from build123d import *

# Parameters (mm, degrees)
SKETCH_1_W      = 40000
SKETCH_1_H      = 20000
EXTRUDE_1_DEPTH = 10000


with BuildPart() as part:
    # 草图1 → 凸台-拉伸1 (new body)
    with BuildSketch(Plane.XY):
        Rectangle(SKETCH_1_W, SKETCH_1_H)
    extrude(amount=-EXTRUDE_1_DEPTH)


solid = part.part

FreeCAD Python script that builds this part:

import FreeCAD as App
import Part
import Sketcher

doc = App.newDocument("Part")
params = doc.addObject("Spreadsheet::Sheet", "Params")
for row, (alias, value) in enumerate([
    ("sketch1_width", "40000 mm"),
    ("sketch1_height", "20000 mm"),
    ("pad1_length", "10000 mm"),
], start=1):
    params.set(f"A{row}", alias)
    params.set(f"B{row}", "=" + value)
    params.setAlias(f"B{row}", alias)

body = doc.addObject("PartDesign::Body", "Body")

# Sketch on XY plane
sketch1 = doc.addObject("Sketcher::SketchObject", "Sketch")
body.addObject(sketch1)
sketch1.AttachmentSupport = (doc.XY_Plane, [""])
sketch1.MapMode = "FlatFace"
sketch1.addGeometry([
    Part.LineSegment(App.Vector(-20000, 10000, 0), App.Vector(-20000, -10000, 0)),
    Part.LineSegment(App.Vector(-20000, -10000, 0), App.Vector(20000, -10000, 0)),
    Part.LineSegment(App.Vector(20000, -10000, 0), App.Vector(20000, 10000, 0)),
    Part.LineSegment(App.Vector(20000, 10000, 0), App.Vector(-20000, 10000, 0)),
], False)
sketch1.addConstraint([
    Sketcher.Constraint("Coincident", 0, 2, 1, 1),
    Sketcher.Constraint("Coincident", 1, 2, 2, 1),
    Sketcher.Constraint("Coincident", 2, 2, 3, 1),
    Sketcher.Constraint("Coincident", 3, 2, 0, 1),
    Sketcher.Constraint("Vertical", 0),
    Sketcher.Constraint("Horizontal", 1),
    Sketcher.Constraint("Vertical", 2),
    Sketcher.Constraint("Horizontal", 3),
    Sketcher.Constraint("Symmetric", 0, 2, 2, 2, -1, 1),
    Sketcher.Constraint("DistanceX", 1, 1, 1, 2, 40000.0),
    Sketcher.Constraint("DistanceY", 0, 2, 0, 1, 20000.0),
])
sketch1.setExpression("Constraints[9]", "Params.sketch1_width")
sketch1.setExpression("Constraints[10]", "Params.sketch1_height")
pad1 = doc.addObject("PartDesign::Pad", "Pad")
body.addObject(pad1)
pad1.Profile = sketch1
pad1.setExpression("Length", "Params.pad1_length")
pad1.Reversed = True

doc.recompute()
